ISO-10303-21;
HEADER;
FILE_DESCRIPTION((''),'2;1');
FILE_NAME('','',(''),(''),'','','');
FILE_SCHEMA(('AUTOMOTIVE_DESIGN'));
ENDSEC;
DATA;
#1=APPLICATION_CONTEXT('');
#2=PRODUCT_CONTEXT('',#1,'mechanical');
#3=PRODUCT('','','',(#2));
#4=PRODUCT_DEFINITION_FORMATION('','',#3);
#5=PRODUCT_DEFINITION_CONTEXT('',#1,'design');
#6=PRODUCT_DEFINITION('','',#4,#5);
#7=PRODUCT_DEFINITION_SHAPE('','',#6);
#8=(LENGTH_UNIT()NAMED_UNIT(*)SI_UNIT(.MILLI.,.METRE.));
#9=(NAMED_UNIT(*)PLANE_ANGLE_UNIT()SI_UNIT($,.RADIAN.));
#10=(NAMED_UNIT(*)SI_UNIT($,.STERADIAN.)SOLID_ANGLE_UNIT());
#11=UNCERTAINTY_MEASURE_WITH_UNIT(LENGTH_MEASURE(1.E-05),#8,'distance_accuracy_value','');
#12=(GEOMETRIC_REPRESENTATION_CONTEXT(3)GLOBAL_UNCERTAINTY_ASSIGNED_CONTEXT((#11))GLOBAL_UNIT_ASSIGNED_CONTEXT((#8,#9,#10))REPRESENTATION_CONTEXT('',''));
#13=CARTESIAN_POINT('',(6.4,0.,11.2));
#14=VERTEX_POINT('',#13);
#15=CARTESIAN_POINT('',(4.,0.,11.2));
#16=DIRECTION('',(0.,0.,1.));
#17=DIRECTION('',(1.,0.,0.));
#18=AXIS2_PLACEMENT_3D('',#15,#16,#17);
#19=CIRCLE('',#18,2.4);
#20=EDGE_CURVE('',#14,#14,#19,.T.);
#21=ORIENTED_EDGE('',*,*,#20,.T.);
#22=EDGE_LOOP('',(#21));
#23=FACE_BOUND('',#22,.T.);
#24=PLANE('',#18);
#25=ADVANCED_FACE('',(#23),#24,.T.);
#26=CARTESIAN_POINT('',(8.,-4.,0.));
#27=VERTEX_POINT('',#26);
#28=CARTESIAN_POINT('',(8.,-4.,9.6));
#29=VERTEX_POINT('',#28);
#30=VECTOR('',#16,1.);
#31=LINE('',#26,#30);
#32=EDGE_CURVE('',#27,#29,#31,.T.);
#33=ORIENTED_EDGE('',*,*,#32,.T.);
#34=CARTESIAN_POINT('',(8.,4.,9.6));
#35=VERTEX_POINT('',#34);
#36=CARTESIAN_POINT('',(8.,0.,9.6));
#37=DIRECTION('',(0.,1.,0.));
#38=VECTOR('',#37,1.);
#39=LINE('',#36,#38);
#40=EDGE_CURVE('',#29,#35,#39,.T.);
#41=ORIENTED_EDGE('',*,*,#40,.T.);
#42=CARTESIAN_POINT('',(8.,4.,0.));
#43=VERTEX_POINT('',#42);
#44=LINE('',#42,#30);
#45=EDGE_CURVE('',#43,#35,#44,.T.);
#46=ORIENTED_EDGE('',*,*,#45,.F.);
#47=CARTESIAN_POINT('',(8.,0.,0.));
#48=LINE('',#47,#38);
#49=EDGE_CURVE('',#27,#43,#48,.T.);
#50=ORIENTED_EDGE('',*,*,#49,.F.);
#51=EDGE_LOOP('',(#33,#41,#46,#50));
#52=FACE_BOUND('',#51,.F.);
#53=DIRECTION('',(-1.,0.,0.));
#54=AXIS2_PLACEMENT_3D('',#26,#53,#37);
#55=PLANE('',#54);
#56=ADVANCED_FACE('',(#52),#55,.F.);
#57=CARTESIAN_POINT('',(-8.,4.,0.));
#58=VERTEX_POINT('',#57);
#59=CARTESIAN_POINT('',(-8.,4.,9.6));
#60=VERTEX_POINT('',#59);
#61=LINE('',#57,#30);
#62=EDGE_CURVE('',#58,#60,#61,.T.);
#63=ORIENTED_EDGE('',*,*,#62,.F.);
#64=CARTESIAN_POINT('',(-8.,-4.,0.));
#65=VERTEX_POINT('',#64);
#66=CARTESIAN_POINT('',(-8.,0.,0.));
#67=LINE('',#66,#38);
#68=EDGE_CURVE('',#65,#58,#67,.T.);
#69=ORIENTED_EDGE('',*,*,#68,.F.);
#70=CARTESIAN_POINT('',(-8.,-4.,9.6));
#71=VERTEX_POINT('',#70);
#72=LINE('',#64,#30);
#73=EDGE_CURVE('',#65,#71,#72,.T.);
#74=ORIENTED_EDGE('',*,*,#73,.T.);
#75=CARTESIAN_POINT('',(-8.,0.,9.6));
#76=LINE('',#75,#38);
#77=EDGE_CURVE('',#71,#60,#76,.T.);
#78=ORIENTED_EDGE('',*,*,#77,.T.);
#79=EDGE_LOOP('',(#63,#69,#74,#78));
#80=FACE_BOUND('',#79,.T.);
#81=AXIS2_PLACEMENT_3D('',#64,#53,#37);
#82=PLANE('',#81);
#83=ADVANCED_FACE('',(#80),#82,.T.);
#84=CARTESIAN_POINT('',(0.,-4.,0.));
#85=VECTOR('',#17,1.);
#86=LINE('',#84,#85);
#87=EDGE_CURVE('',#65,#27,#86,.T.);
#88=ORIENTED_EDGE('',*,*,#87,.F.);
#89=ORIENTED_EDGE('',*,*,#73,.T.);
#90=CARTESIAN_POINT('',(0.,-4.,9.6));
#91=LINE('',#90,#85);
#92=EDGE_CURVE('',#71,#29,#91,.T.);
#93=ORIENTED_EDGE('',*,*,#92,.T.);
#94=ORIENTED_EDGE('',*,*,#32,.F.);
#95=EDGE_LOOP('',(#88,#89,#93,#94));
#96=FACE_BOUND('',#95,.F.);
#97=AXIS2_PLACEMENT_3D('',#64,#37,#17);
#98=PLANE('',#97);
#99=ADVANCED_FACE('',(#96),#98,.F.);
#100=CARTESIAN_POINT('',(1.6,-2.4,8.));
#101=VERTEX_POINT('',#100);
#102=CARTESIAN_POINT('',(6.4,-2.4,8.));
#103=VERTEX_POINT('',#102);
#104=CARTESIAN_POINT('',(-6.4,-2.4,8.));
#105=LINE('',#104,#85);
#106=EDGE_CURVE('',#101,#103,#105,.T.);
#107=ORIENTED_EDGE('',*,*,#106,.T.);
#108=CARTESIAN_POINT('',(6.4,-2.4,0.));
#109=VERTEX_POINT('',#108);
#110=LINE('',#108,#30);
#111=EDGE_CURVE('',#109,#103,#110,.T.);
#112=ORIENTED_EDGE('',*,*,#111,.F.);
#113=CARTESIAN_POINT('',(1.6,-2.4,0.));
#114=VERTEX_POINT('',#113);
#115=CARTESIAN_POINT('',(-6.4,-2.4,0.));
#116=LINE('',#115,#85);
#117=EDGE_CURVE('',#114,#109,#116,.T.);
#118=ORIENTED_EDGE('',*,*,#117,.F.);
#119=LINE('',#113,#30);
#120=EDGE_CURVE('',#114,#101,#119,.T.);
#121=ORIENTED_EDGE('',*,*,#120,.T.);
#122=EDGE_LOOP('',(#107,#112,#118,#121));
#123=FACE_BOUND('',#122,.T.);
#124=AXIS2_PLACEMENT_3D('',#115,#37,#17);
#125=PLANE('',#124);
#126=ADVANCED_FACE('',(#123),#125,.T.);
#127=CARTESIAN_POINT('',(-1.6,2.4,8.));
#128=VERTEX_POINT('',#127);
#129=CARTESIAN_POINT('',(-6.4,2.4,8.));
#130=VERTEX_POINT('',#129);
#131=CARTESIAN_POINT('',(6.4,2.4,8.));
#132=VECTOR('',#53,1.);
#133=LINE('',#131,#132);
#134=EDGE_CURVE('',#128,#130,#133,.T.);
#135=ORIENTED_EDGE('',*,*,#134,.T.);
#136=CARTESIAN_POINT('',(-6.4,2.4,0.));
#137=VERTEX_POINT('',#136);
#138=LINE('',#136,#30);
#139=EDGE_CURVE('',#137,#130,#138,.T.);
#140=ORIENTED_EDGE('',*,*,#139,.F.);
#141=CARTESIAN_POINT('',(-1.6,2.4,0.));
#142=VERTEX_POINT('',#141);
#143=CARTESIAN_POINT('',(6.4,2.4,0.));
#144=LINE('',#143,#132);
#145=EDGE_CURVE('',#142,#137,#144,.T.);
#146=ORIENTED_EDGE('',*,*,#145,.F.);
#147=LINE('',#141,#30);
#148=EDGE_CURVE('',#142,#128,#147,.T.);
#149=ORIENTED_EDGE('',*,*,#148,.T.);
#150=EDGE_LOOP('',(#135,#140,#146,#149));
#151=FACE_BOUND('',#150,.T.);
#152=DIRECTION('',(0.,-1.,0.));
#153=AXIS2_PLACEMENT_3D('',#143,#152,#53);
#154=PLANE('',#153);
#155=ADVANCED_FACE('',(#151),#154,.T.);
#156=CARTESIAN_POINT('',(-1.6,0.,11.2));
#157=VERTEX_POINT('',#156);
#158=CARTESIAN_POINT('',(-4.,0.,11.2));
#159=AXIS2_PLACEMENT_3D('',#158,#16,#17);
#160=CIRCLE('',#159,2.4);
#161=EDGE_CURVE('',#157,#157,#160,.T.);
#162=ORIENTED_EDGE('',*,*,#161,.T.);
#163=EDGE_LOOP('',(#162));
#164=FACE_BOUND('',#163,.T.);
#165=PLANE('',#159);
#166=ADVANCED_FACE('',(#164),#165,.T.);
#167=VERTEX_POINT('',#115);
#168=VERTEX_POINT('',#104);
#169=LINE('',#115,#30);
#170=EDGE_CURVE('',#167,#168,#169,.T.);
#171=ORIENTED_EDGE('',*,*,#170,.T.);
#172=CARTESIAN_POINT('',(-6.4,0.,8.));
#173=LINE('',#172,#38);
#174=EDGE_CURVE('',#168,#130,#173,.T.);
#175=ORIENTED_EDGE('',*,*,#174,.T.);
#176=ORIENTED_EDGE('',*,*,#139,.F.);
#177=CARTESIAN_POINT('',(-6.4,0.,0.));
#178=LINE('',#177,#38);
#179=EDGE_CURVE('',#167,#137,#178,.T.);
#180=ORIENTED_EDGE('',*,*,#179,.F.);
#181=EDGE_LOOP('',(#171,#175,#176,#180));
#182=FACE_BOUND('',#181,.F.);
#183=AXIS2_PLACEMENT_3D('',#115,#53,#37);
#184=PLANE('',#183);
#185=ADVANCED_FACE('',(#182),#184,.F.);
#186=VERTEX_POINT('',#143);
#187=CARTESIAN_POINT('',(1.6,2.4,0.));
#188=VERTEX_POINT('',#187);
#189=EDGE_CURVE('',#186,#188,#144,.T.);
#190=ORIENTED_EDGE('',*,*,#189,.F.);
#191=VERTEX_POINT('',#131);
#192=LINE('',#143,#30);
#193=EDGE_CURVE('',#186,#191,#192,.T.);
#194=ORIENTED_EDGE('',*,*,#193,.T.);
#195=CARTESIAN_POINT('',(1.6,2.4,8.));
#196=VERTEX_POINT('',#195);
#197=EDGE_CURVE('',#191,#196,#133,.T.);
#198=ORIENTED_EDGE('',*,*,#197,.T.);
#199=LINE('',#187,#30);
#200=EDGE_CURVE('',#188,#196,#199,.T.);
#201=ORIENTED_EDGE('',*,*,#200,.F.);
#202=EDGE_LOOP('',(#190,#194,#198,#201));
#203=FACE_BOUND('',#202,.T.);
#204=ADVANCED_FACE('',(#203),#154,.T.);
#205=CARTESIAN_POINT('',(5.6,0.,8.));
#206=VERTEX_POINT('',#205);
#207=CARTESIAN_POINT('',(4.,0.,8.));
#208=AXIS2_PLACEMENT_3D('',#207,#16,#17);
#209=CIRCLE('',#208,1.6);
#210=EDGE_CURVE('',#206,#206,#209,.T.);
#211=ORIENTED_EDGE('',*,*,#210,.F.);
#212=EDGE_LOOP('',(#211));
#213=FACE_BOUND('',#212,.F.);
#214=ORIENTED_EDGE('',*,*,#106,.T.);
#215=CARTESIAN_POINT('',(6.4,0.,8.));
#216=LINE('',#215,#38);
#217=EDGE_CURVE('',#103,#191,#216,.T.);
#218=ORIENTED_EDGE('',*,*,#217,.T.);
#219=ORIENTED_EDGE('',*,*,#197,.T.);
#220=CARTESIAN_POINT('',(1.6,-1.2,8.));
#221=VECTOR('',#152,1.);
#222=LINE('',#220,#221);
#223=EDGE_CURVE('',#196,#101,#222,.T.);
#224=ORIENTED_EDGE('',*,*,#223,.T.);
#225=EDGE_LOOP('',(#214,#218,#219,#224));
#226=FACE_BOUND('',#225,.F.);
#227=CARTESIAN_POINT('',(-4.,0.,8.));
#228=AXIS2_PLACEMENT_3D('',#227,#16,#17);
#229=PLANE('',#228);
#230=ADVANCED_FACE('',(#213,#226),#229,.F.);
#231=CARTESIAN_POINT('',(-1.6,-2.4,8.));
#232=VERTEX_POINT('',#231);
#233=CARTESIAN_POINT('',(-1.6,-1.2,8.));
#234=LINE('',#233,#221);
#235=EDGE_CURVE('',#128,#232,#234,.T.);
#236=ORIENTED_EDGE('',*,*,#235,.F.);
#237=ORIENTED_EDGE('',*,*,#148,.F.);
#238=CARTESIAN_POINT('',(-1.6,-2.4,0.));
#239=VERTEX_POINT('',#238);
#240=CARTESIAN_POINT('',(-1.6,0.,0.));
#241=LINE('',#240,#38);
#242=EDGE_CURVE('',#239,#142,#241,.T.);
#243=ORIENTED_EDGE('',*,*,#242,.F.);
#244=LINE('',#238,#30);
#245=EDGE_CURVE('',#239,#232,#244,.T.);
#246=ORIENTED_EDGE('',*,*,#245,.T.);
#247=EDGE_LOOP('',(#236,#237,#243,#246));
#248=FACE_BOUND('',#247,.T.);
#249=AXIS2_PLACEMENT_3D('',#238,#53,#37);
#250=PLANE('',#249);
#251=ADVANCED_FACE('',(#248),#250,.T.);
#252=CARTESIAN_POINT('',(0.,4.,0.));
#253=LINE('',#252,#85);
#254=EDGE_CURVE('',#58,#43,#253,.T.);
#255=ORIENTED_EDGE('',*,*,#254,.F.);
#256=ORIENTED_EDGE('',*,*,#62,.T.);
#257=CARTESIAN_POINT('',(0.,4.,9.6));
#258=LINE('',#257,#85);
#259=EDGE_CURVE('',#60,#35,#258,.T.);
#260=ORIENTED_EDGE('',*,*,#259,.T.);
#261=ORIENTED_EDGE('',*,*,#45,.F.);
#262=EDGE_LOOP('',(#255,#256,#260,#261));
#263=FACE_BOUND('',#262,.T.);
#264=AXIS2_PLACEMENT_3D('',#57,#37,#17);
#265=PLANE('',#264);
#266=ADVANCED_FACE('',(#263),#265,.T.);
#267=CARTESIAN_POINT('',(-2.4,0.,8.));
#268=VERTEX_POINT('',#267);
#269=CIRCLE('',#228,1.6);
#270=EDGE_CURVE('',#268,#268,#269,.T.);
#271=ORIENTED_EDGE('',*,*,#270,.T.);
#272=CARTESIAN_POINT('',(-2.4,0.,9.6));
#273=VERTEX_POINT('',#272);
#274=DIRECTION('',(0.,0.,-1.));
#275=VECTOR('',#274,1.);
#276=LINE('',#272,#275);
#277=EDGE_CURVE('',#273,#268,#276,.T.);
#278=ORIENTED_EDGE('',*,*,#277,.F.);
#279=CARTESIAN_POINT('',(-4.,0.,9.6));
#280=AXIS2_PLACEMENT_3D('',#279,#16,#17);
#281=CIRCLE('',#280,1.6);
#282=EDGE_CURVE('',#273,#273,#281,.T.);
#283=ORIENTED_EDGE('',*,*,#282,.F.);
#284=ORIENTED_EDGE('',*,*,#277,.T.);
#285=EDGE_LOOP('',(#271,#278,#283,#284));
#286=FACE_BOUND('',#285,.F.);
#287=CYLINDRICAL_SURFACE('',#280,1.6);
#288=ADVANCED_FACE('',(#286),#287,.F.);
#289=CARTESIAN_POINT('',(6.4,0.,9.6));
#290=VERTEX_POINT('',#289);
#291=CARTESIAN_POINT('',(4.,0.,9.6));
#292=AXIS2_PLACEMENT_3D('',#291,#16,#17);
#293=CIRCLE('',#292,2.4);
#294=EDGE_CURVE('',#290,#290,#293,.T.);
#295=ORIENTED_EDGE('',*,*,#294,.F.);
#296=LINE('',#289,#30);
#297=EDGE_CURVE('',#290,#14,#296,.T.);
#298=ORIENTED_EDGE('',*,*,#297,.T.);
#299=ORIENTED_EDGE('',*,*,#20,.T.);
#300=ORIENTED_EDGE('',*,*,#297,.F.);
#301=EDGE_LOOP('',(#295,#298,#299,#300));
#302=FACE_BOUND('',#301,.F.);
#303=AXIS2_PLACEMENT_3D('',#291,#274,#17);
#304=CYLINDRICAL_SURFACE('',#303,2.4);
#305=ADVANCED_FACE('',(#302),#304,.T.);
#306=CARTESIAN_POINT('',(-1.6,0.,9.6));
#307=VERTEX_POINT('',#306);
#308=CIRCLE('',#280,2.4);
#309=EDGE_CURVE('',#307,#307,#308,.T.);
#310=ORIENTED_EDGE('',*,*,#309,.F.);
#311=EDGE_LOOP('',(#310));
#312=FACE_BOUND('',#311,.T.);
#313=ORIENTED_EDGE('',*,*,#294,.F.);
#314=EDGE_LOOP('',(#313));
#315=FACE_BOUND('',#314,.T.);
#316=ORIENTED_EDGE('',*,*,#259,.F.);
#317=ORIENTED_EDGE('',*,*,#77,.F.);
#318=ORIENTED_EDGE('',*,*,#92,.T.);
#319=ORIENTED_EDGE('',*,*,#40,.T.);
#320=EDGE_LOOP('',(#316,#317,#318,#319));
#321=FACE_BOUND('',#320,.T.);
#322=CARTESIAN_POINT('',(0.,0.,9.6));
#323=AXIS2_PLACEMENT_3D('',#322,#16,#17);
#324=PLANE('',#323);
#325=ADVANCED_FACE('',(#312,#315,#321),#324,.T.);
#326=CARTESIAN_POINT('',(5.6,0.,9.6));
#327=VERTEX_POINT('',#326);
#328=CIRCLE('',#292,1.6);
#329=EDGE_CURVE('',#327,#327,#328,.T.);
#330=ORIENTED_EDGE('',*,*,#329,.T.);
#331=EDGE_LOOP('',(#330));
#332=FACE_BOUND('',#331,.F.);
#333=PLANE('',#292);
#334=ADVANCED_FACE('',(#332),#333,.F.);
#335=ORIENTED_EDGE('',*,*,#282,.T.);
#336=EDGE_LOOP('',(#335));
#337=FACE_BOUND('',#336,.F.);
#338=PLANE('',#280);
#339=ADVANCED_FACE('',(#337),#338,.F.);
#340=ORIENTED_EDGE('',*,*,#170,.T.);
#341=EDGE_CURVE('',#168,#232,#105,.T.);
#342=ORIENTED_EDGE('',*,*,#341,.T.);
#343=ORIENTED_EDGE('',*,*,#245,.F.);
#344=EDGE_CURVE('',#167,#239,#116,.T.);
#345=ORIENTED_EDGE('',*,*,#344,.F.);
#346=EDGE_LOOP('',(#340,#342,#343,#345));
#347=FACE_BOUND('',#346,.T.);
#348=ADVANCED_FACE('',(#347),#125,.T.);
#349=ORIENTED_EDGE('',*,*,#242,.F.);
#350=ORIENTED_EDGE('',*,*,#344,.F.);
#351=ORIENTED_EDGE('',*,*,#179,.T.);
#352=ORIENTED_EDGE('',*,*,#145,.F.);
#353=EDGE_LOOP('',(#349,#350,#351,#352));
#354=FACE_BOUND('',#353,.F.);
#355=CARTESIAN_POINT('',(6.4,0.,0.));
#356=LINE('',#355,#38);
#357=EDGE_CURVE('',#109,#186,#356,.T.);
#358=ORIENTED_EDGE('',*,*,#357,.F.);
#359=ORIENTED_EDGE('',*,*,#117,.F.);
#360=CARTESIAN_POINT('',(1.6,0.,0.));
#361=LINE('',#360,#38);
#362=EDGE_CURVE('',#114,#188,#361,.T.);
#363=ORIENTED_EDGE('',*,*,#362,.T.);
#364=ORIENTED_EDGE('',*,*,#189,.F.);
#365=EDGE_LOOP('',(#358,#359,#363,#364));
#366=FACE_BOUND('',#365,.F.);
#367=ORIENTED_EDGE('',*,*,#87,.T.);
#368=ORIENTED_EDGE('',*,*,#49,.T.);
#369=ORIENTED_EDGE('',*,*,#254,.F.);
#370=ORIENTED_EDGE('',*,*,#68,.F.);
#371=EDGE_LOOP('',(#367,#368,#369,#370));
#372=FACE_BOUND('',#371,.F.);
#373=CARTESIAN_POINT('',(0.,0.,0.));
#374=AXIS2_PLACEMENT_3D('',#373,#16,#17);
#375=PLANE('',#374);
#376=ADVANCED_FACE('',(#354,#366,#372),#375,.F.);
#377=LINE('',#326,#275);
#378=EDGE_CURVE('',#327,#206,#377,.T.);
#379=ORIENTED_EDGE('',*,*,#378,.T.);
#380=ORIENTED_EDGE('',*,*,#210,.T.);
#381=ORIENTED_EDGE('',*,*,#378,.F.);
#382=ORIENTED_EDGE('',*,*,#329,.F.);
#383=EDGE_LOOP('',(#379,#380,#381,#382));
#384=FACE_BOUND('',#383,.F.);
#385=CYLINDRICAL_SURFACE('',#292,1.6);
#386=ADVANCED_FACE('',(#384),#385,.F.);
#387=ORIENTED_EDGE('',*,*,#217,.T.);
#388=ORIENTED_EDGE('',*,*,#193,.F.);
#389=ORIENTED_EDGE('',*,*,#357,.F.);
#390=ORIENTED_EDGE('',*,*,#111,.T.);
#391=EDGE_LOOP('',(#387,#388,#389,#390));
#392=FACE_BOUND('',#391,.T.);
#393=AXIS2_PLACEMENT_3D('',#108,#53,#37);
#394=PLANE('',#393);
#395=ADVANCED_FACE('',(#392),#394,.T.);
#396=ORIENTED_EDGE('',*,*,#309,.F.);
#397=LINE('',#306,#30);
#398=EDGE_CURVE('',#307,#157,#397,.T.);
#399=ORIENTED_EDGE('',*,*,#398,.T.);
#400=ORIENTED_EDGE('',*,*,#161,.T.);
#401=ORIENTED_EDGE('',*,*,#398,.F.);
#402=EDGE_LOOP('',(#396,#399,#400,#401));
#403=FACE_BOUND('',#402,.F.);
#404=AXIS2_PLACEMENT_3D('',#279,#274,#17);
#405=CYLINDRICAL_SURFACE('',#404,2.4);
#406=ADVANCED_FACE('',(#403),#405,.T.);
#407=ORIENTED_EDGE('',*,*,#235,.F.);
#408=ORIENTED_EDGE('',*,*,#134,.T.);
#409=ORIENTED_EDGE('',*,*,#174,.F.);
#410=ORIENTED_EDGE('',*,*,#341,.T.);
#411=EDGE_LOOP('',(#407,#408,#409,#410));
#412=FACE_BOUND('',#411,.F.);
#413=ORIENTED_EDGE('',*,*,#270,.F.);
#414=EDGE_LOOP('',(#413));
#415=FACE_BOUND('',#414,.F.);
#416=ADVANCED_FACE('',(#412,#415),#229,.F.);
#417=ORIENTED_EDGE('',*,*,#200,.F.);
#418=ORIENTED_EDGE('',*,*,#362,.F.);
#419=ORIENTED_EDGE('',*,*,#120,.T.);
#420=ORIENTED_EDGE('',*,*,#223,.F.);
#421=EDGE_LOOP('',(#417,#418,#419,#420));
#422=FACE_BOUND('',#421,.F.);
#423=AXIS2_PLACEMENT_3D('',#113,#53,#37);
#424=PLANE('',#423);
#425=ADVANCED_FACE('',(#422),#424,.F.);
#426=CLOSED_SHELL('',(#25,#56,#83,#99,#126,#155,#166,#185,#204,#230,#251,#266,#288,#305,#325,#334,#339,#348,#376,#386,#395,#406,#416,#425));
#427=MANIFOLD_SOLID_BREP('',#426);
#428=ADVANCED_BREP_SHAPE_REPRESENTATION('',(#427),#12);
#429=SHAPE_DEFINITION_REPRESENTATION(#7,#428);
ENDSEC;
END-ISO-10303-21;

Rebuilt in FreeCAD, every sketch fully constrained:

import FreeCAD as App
import Part
import Sketcher

doc = App.newDocument("Part")
body = doc.addObject("PartDesign::Body", "Body")

sketch1 = body.newObject("Sketcher::SketchObject", "Sketch")
sketch1.AttachmentSupport = (doc.getObject("XY_Plane"), [""])
sketch1.MapMode = "FlatFace"
sketch1.addGeometry(Part.LineSegment(App.Vector(-8, 4, 0), App.Vector(-8, -4, 0)), False)
sketch1.addGeometry(Part.LineSegment(App.Vector(-8, -4, 0), App.Vector(8, -4, 0)), False)
sketch1.addGeometry(Part.LineSegment(App.Vector(8, -4, 0), App.Vector(8, 4, 0)), False)
sketch1.addGeometry(Part.LineSegment(App.Vector(8, 4, 0), App.Vector(-8, 4, 0)), False)
sketch1.addConstraint(Sketcher.Constraint("Coincident", 0, 2, 1, 1))
sketch1.addConstraint(Sketcher.Constraint("Coincident", 1, 2, 2, 1))
sketch1.addConstraint(Sketcher.Constraint("Coincident", 2, 2, 3, 1))
sketch1.addConstraint(Sketcher.Constraint("Coincident", 3, 2, 0, 1))
sketch1.addConstraint(Sketcher.Constraint("Vertical", 0))
sketch1.addConstraint(Sketcher.Constraint("Horizontal", 1))
sketch1.addConstraint(Sketcher.Constraint("Vertical", 2))
sketch1.addConstraint(Sketcher.Constraint("Horizontal", 3))
sketch1.addConstraint(Sketcher.Constraint("Symmetric", 0, 2, 2, 2, -1, 1))
sketch1.addConstraint(Sketcher.Constraint("DistanceX", 1, 1, 1, 2, 16.0))
sketch1.addConstraint(Sketcher.Constraint("DistanceY", 0, 2, 0, 1, 8.0))
pad1 = body.newObject("PartDesign::Pad", "Pad")
pad1.Profile = sketch1
pad1.Length = 9.6

sketch2 = body.newObject("Sketcher::SketchObject", "Sketch001")
sketch2.AttachmentSupport = (doc.getObject("XY_Plane"), [""])
sketch2.MapMode = "FlatFace"
sketch2.addGeometry(Part.LineSegment(App.Vector(-6.4, 2.4, 0), App.Vector(-6.4, -2.4, 0)), False)
sketch2.addGeometry(Part.LineSegment(App.Vector(-6.4, -2.4, 0), App.Vector(6.4, -2.4, 0)), False)
sketch2.addGeometry(Part.LineSegment(App.Vector(6.4, -2.4, 0), App.Vector(6.4, 2.4, 0)), False)
sketch2.addGeometry(Part.LineSegment(App.Vector(6.4, 2.4, 0), App.Vector(-6.4, 2.4, 0)), False)
sketch2.addConstraint(Sketcher.Constraint("Coincident", 0, 2, 1, 1))
sketch2.addConstraint(Sketcher.Constraint("Coincident", 1, 2, 2, 1))
sketch2.addConstraint(Sketcher.Constraint("Coincident", 2, 2, 3, 1))
sketch2.addConstraint(Sketcher.Constraint("Coincident", 3, 2, 0, 1))
sketch2.addConstraint(Sketcher.Constraint("Vertical", 0))
sketch2.addConstraint(Sketcher.Constraint("Horizontal", 1))
sketch2.addConstraint(Sketcher.Constraint("Vertical", 2))
sketch2.addConstraint(Sketcher.Constraint("Horizontal", 3))
sketch2.addConstraint(Sketcher.Constraint("Symmetric", 0, 2, 2, 2, -1, 1))
sketch2.addConstraint(Sketcher.Constraint("DistanceX", 1, 1, 1, 2, 12.8))
sketch2.addConstraint(Sketcher.Constraint("DistanceY", 0, 2, 0, 1, 4.8))
pocket1 = body.newObject("PartDesign::Pocket", "Pocket")
pocket1.Profile = sketch2
pocket1.Length = 8
pocket1.Reversed = True

sketch3 = body.newObject("Sketcher::SketchObject", "Sketch002")
sketch3.AttachmentSupport = (doc.getObject("XY_Plane"), [""])
sketch3.MapMode = "FlatFace"
sketch3.addGeometry(Part.LineSegment(App.Vector(-1.6, 2.4, 0), App.Vector(-1.6, -2.4, 0)), False)
sketch3.addGeometry(Part.LineSegment(App.Vector(-1.6, -2.4, 0), App.Vector(1.6, -2.4, 0)), False)
sketch3.addGeometry(Part.LineSegment(App.Vector(1.6, -2.4, 0), App.Vector(1.6, 2.4, 0)), False)
sketch3.addGeometry(Part.LineSegment(App.Vector(1.6, 2.4, 0), App.Vector(-1.6, 2.4, 0)), False)
sketch3.addConstraint(Sketcher.Constraint("Coincident", 0, 2, 1, 1))
sketch3.addConstraint(Sketcher.Constraint("Coincident", 1, 2, 2, 1))
sketch3.addConstraint(Sketcher.Constraint("Coincident", 2, 2, 3, 1))
sketch3.addConstraint(Sketcher.Constraint("Coincident", 3, 2, 0, 1))
sketch3.addConstraint(Sketcher.Constraint("Vertical", 0))
sketch3.addConstraint(Sketcher.Constraint("Horizontal", 1))
sketch3.addConstraint(Sketcher.Constraint("Vertical", 2))
sketch3.addConstraint(Sketcher.Constraint("Horizontal", 3))
sketch3.addConstraint(Sketcher.Constraint("Symmetric", 0, 2, 2, 2, -1, 1))
sketch3.addConstraint(Sketcher.Constraint("DistanceX", 1, 1, 1, 2, 3.2))
sketch3.addConstraint(Sketcher.Constraint("DistanceY", 0, 2, 0, 1, 4.8))
pad2 = body.newObject("PartDesign::Pad", "Pad001")
pad2.Profile = sketch3
pad2.Length = 9.6

sketch4 = body.newObject("Sketcher::SketchObject", "Sketch003")
sketch4.AttachmentSupport = (doc.getObject("XY_Plane"), [""])
sketch4.MapMode = "FlatFace"
sketch4.AttachmentOffset = App.Placement(App.Vector(0, 0, 9.6), App.Rotation())
sketch4.addGeometry(Part.Circle(App.Vector(-4, 0, 0), App.Vector(0, 0, 1), 1.6), False)
sketch4.addGeometry(Part.Circle(App.Vector(4, 0, 0), App.Vector(0, 0, 1), 1.6), False)
sketch4.addConstraint(Sketcher.Constraint("Equal", 0, 1))
sketch4.addConstraint(Sketcher.Constraint("Symmetric", 0, 3, 1, 3, -1, 1))
sketch4.addConstraint(Sketcher.Constraint("PointOnObject", 0, 3, -1))
sketch4.addConstraint(Sketcher.Constraint("Diameter", 0, 3.2))
sketch4.addConstraint(Sketcher.Constraint("DistanceX", 0, 3, -1, 1, 4.0))
pocket2 = body.newObject("PartDesign::Pocket", "Pocket001")
pocket2.Profile = sketch4
pocket2.Length = 1.6

sketch5 = body.newObject("Sketcher::SketchObject", "Sketch004")
sketch5.AttachmentSupport = (doc.getObject("XY_Plane"), [""])
sketch5.MapMode = "FlatFace"
sketch5.AttachmentOffset = App.Placement(App.Vector(0, 0, 9.6), App.Rotation())
sketch5.addGeometry(Part.Circle(App.Vector(-4, 0, 0), App.Vector(0, 0, 1), 2.4), False)
sketch5.addGeometry(Part.Circle(App.Vector(4, 0, 0), App.Vector(0, 0, 1), 2.4), False)
sketch5.addConstraint(Sketcher.Constraint("Equal", 0, 1))
sketch5.addConstraint(Sketcher.Constraint("Symmetric", 0, 3, 1, 3, -1, 1))
sketch5.addConstraint(Sketcher.Constraint("PointOnObject", 0, 3, -1))
sketch5.addConstraint(Sketcher.Constraint("Diameter", 0, 4.8))
sketch5.addConstraint(Sketcher.Constraint("DistanceX", 0, 3, -1, 1, 4.0))
pad3 = body.newObject("PartDesign::Pad", "Pad002")
pad3.Profile = sketch5
pad3.Length = 1.6

doc.recompute()
